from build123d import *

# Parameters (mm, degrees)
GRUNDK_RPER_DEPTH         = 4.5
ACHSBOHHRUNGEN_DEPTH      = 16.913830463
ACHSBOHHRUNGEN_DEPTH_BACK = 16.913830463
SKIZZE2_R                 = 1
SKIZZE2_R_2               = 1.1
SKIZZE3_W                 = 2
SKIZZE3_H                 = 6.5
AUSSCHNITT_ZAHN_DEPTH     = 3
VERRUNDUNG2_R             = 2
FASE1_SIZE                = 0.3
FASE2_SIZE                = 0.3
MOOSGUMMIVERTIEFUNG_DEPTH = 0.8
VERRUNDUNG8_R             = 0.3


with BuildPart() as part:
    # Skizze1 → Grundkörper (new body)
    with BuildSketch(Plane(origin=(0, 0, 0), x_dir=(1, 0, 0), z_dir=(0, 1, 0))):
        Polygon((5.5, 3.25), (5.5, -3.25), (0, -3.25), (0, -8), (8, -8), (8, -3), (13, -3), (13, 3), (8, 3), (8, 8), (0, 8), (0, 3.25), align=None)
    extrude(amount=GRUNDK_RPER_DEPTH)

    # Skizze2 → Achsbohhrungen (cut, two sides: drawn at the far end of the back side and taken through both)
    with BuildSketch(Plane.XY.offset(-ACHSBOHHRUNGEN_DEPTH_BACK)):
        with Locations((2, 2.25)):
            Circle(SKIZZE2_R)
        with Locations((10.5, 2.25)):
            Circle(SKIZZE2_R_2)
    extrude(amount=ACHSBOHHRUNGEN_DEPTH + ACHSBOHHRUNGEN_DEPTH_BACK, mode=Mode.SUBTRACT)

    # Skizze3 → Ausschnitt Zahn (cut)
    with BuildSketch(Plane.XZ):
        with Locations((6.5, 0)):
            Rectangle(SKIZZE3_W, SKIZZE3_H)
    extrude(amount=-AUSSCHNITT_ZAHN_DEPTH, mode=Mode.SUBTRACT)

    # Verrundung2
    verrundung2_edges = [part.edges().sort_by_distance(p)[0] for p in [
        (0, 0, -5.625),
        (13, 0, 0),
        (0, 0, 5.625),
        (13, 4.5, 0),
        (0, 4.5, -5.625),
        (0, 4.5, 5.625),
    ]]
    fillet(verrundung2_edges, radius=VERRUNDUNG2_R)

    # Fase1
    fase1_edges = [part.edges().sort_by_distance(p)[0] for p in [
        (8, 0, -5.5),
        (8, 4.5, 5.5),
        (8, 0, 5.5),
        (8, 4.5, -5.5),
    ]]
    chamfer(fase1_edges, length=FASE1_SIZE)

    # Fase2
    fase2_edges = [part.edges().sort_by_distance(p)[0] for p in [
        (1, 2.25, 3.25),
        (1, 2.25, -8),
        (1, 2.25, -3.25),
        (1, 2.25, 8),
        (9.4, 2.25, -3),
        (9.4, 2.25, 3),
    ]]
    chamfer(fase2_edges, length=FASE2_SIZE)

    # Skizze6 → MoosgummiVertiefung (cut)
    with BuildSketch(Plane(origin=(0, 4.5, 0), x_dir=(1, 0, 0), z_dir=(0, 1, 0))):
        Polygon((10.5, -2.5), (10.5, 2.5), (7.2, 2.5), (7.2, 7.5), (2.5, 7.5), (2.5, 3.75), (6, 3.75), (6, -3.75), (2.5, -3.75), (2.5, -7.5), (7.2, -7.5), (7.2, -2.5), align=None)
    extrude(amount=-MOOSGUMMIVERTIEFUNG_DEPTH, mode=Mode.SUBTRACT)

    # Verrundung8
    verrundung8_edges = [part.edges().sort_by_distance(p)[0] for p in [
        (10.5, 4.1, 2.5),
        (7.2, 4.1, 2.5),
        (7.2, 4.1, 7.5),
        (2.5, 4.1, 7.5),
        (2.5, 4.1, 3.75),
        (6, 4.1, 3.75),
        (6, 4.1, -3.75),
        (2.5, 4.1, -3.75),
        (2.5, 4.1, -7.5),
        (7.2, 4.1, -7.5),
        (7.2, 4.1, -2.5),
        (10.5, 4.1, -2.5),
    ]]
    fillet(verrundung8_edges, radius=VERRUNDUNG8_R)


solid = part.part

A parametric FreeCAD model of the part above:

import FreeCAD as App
import Part
import Sketcher

V = App.Vector
Q = App.Units.Quantity


def edges_at(feature, points):
    """Names of the edges that pass closest to the given points."""
    edges = feature.Shape.Edges
    near = lambda p: min(range(len(edges)), key=lambda i: edges[i].distToShape(Part.Vertex(*p))[0])
    return sorted({f"Edge{near(p) + 1}" for p in points})

doc = App.newDocument("Part")
body = doc.addObject("PartDesign::Body", "Body")

# Sketch on XZ plane
sketch1 = body.newObject("Sketcher::SketchObject", "Sketch")
sketch1.AttachmentSupport = (doc.getObject("XZ_Plane"), [""])
sketch1.MapMode = "FlatFace"
sketch1.addGeometry([
    Part.LineSegment(V(5.5, -3.2, 0), V(5.5, 3.2, 0)),  # 0
    Part.LineSegment(V(5.5, 3.2, 0), V(0, 3.2, 0)),  # 1
    Part.LineSegment(V(0, 3.2, 0), V(0, 8, 0)),  # 2
    Part.LineSegment(V(0, 8, 0), V(8, 8, 0)),  # 3
    Part.LineSegment(V(8, 8, 0), V(8, 3, 0)),  # 4
    Part.LineSegment(V(8, 3, 0), V(13, 3, 0)),  # 5
    Part.LineSegment(V(13, 3, 0), V(13, -3, 0)),  # 6
    Part.LineSegment(V(13, -3, 0), V(8, -3, 0)),  # 7
    Part.LineSegment(V(8, -3, 0), V(8, -8, 0)),  # 8
    Part.LineSegment(V(8, -8, 0), V(0, -8, 0)),  # 9
    Part.LineSegment(V(0, -8, 0), V(0, -3.2, 0)),  # 10
    Part.LineSegment(V(0, -3.2, 0), V(5.5, -3.2, 0)),  # 11
], False)
sketch1.addConstraint([
    Sketcher.Constraint("Coincident", 0, 2, 1, 1),
    Sketcher.Constraint("Coincident", 1, 2, 2, 1),
    Sketcher.Constraint("Coincident", 2, 2, 3, 1),
    Sketcher.Constraint("Coincident", 3, 2, 4, 1),
    Sketcher.Constraint("Coincident", 4, 2, 5, 1),
    Sketcher.Constraint("Coincident", 5, 2, 6, 1),
    Sketcher.Constraint("Coincident", 6, 2, 7, 1),
    Sketcher.Constraint("Coincident", 7, 2, 8, 1),
    Sketcher.Constraint("Coincident", 8, 2, 9, 1),
    Sketcher.Constraint("Coincident", 9, 2, 10, 1),
    Sketcher.Constraint("Coincident", 10, 2, 11, 1),
    Sketcher.Constraint("Coincident", 11, 2, 0, 1),
    Sketcher.Constraint("Vertical", 0),
    Sketcher.Constraint("Horizontal", 1),
    Sketcher.Constraint("Vertical", 2),
    Sketcher.Constraint("Horizontal", 3),
    Sketcher.Constraint("Vertical", 4),
    Sketcher.Constraint("Horizontal", 5),
    Sketcher.Constraint("Vertical", 6),
    Sketcher.Constraint("Horizontal", 7),
    Sketcher.Constraint("Vertical", 8),
    Sketcher.Constraint("Horizontal", 9),
    Sketcher.Constraint("Vertical", 10),
    Sketcher.Constraint("Horizontal", 11),
    Sketcher.Constraint("Symmetric", 2, 2, 9, 2, -1, 1),
    Sketcher.Constraint("Symmetric", 4, 2, 7, 2, -1),
    Sketcher.Constraint("Symmetric", 1, 2, 10, 2, -1),
    Sketcher.Constraint("Equal", 7, 4),
    Sketcher.Constraint("DistanceX", 3, 1, 3, 2, Q("8 mm")),
    Sketcher.Constraint("DistanceX", 5, 1, 5, 2, Q("5 mm")),
    Sketcher.Constraint("DistanceY", 6, 2, 6, 1, Q("6 mm")),
    Sketcher.Constraint("DistanceX", 1, 2, 1, 1, Q("5.5 mm")),
    Sketcher.Constraint("DistanceY", 0, 1, 0, 2, Q("6.5 mm")),
])
pad1 = body.newObject("PartDesign::Pad", "Pad")
pad1.Profile = sketch1
pad1.Length = 4.5
pad1.Reversed = True

# Sketch on XY plane
sketch2 = body.newObject("Sketcher::SketchObject", "Sketch001")
sketch2.AttachmentSupport = (doc.getObject("XY_Plane"), [""])
sketch2.MapMode = "FlatFace"
sketch2.addGeometry([
    Part.Circle(V(2, 2.2, 0), V(0, 0, 1), 1),
    Part.Circle(V(10.5, 2.2, 0), V(0, 0, 1), 1.1),
], False)
sketch2.addConstraint([
    Sketcher.Constraint("Horizontal", 0, 3, 1, 3),
    Sketcher.Constraint("Diameter", 0, Q("2 mm")),
    Sketcher.Constraint("Diameter", 1, Q("2.2 mm")),
    Sketcher.Constraint("DistanceX", -1, 1, 0, 3, Q("2 mm")),
    Sketcher.Constraint("DistanceX", -1, 1, 1, 3, Q("10.5 mm")),
    Sketcher.Constraint("DistanceY", -1, 1, 0, 3, Q("2.25 mm")),
])
pocket1 = body.newObject("PartDesign::Pocket", "Pocket")
pocket1.Profile = sketch2
pocket1.Type = "ThroughAll"
pocket1.Midplane = True

# Sketch on XZ plane
sketch3 = body.newObject("Sketcher::SketchObject", "Sketch002")
sketch3.AttachmentSupport = (doc.getObject("XZ_Plane"), [""])
sketch3.MapMode = "FlatFace"
sketch3.addGeometry([
    Part.LineSegment(V(5.5, 3.2, 0), V(5.5, -3.2, 0)),
    Part.LineSegment(V(5.5, -3.2, 0), V(7.5, -3.2, 0)),
    Part.LineSegment(V(7.5, -3.2, 0), V(7.5, 3.2, 0)),
    Part.LineSegment(V(7.5, 3.2, 0), V(5.5, 3.2, 0)),
], False)
sketch3.addConstraint([
    Sketcher.Constraint("Coincident", 0, 2, 1, 1),
    Sketcher.Constraint("Coincident", 1, 2, 2, 1),
    Sketcher.Constraint("Coincident", 2, 2, 3, 1),
    Sketcher.Constraint("Coincident", 3, 2, 0, 1),
    Sketcher.Constraint("Vertical", 0),
    Sketcher.Constraint("Horizontal", 1),
    Sketcher.Constraint("Vertical", 2),
    Sketcher.Constraint("Horizontal", 3),
    Sketcher.Constraint("DistanceX", 1, 1, 1, 2, Q("2 mm")),
    Sketcher.Constraint("DistanceY", 0, 2, 0, 1, Q("6.5 mm")),
    Sketcher.Constraint("DistanceX", -1, 1, 0, 2, Q("5.5 mm")),
    Sketcher.Constraint("DistanceY", 0, 2, -1, 1, Q("3.25 mm")),
])
pocket2 = body.newObject("PartDesign::Pocket", "Pocket001")
pocket2.Profile = sketch3
pocket2.Length = 3
doc.recompute()

fillet = body.newObject("PartDesign::Fillet", "Fillet")
fillet.Base = (pocket2, edges_at(pocket2, [
    (0, 0, -5.625),
    (13, 0, 0),
    (0, 0, 5.625),
    (13, 4.5, 0),
    (0, 4.5, -5.625),
    (0, 4.5, 5.625),
]))
fillet.Radius = 2
doc.recompute()

chamfer = body.newObject("PartDesign::Chamfer", "Chamfer")
chamfer.Base = (fillet, edges_at(fillet, [
    (8, 0, -5.5),
    (8, 4.5, 5.5),
    (8, 0, 5.5),
    (8, 4.5, -5.5),
]))
chamfer.Size = 0.3
doc.recompute()

chamfer2 = body.newObject("PartDesign::Chamfer", "Chamfer001")
chamfer2.Base = (chamfer, edges_at(chamfer, [
    (1, 2.25, 3.25),
    (1, 2.25, -8),
    (1, 2.25, -3.25),
    (1, 2.25, 8),
    (9.4, 2.25, -3),
    (9.4, 2.25, 3),
]))
chamfer2.Size = 0.3

# Sketch on XZ plane
sketch4 = body.newObject("Sketcher::SketchObject", "Sketch003")
sketch4.AttachmentSupport = (doc.getObject("XZ_Plane"), [""])
sketch4.MapMode = "FlatFace"
sketch4.AttachmentOffset = App.Placement(V(0, 0, -4.5), App.Rotation())
sketch4.addGeometry([
    Part.LineSegment(V(10.5, 2.5, 0), V(10.5, -2.5, 0)),  # 0
    Part.LineSegment(V(10.5, -2.5, 0), V(7.2, -2.5, 0)),  # 1
    Part.LineSegment(V(7.2, -2.5, 0), V(7.2, -7.5, 0)),  # 2
    Part.LineSegment(V(7.2, -7.5, 0), V(2.5, -7.5, 0)),  # 3
    Part.LineSegment(V(2.5, -7.5, 0), V(2.5, -3.8, 0)),  # 4
    Part.LineSegment(V(2.5, -3.8, 0), V(6, -3.8, 0)),  # 5
    Part.LineSegment(V(6, -3.8, 0), V(6, 3.8, 0)),  # 6
    Part.LineSegment(V(6, 3.8, 0), V(2.5, 3.8, 0)),  # 7
    Part.LineSegment(V(2.5, 3.8, 0), V(2.5, 7.5, 0)),  # 8
    Part.LineSegment(V(2.5, 7.5, 0), V(7.2, 7.5, 0)),  # 9
    Part.LineSegment(V(7.2, 7.5, 0), V(7.2, 2.5, 0)),  # 10
    Part.LineSegment(V(7.2, 2.5, 0), V(10.5, 2.5, 0)),  # 11
], False)
sketch4.addConstraint([
    Sketcher.Constraint("Coincident", 0, 2, 1, 1),
    Sketcher.Constraint("Coincident", 1, 2, 2, 1),
    Sketcher.Constraint("Coincident", 2, 2, 3, 1),
    Sketcher.Constraint("Coincident", 3, 2, 4, 1),
    Sketcher.Constraint("Coincident", 4, 2, 5, 1),
    Sketcher.Constraint("Coincident", 5, 2, 6, 1),
    Sketcher.Constraint("Coincident", 6, 2, 7, 1),
    Sketcher.Constraint("Coincident", 7, 2, 8, 1),
    Sketcher.Constraint("Coincident", 8, 2, 9, 1),
    Sketcher.Constraint("Coincident", 9, 2, 10, 1),
    Sketcher.Constraint("Coincident", 10, 2, 11, 1),
    Sketcher.Constraint("Coincident", 11, 2, 0, 1),
    Sketcher.Constraint("Vertical", 0),
    Sketcher.Constraint("Horizontal", 1),
    Sketcher.Constraint("Vertical", 2),
    Sketcher.Constraint("Horizontal", 3),
    Sketcher.Constraint("Vertical", 4),
    Sketcher.Constraint("Horizontal", 5),
    Sketcher.Constraint("Vertical", 6),
    Sketcher.Constraint("Horizontal", 7),
    Sketcher.Constraint("Vertical", 8),
    Sketcher.Constraint("Horizontal", 9),
    Sketcher.Constraint("Vertical", 10),
    Sketcher.Constraint("Horizontal", 11),
    Sketcher.Constraint("Symmetric", 4, 2, 7, 2, -1),
    Sketcher.Constraint("Symmetric", 2, 2, 9, 2, -1),
    Sketcher.Constraint("Equal", 0, 2),
    Sketcher.Constraint("Equal", 2, 10),
    Sketcher.Constraint("DistanceY", 0, 2, 0, 1, Q("5 mm")),
    Sketcher.Constraint("DistanceX", 1, 2, 1, 1, Q("3.3 mm")),
    Sketcher.Constraint("DistanceX", 3, 2, 3, 1, Q("4.7 mm")),
    Sketcher.Constraint("DistanceX", 5, 1, 5, 2, Q("3.5 mm")),
    Sketcher.Constraint("DistanceY", 6, 1, 6, 2, Q("7.5 mm")),
    Sketcher.Constraint("DistanceX", -1, 1, 5, 2, Q("6 mm")),
])
pocket3 = body.newObject("PartDesign::Pocket", "Pocket002")
pocket3.Profile = sketch4
pocket3.Length = 0.8
pocket3.Reversed = True
doc.recompute()

fillet2 = body.newObject("PartDesign::Fillet", "Fillet001")
fillet2.Base = (pocket3, edges_at(pocket3, [
    (10.5, 4.1, 2.5),
    (7.2, 4.1, 2.5),
    (7.2, 4.1, 7.5),
    (2.5, 4.1, 7.5),
    (2.5, 4.1, 3.75),
    (6, 4.1, 3.75),
    (6, 4.1, -3.75),
    (2.5, 4.1, -3.75),
    (2.5, 4.1, -7.5),
    (7.2, 4.1, -7.5),
    (7.2, 4.1, -2.5),
    (10.5, 4.1, -2.5),
]))
fillet2.Radius = 0.3

doc.recompute()
